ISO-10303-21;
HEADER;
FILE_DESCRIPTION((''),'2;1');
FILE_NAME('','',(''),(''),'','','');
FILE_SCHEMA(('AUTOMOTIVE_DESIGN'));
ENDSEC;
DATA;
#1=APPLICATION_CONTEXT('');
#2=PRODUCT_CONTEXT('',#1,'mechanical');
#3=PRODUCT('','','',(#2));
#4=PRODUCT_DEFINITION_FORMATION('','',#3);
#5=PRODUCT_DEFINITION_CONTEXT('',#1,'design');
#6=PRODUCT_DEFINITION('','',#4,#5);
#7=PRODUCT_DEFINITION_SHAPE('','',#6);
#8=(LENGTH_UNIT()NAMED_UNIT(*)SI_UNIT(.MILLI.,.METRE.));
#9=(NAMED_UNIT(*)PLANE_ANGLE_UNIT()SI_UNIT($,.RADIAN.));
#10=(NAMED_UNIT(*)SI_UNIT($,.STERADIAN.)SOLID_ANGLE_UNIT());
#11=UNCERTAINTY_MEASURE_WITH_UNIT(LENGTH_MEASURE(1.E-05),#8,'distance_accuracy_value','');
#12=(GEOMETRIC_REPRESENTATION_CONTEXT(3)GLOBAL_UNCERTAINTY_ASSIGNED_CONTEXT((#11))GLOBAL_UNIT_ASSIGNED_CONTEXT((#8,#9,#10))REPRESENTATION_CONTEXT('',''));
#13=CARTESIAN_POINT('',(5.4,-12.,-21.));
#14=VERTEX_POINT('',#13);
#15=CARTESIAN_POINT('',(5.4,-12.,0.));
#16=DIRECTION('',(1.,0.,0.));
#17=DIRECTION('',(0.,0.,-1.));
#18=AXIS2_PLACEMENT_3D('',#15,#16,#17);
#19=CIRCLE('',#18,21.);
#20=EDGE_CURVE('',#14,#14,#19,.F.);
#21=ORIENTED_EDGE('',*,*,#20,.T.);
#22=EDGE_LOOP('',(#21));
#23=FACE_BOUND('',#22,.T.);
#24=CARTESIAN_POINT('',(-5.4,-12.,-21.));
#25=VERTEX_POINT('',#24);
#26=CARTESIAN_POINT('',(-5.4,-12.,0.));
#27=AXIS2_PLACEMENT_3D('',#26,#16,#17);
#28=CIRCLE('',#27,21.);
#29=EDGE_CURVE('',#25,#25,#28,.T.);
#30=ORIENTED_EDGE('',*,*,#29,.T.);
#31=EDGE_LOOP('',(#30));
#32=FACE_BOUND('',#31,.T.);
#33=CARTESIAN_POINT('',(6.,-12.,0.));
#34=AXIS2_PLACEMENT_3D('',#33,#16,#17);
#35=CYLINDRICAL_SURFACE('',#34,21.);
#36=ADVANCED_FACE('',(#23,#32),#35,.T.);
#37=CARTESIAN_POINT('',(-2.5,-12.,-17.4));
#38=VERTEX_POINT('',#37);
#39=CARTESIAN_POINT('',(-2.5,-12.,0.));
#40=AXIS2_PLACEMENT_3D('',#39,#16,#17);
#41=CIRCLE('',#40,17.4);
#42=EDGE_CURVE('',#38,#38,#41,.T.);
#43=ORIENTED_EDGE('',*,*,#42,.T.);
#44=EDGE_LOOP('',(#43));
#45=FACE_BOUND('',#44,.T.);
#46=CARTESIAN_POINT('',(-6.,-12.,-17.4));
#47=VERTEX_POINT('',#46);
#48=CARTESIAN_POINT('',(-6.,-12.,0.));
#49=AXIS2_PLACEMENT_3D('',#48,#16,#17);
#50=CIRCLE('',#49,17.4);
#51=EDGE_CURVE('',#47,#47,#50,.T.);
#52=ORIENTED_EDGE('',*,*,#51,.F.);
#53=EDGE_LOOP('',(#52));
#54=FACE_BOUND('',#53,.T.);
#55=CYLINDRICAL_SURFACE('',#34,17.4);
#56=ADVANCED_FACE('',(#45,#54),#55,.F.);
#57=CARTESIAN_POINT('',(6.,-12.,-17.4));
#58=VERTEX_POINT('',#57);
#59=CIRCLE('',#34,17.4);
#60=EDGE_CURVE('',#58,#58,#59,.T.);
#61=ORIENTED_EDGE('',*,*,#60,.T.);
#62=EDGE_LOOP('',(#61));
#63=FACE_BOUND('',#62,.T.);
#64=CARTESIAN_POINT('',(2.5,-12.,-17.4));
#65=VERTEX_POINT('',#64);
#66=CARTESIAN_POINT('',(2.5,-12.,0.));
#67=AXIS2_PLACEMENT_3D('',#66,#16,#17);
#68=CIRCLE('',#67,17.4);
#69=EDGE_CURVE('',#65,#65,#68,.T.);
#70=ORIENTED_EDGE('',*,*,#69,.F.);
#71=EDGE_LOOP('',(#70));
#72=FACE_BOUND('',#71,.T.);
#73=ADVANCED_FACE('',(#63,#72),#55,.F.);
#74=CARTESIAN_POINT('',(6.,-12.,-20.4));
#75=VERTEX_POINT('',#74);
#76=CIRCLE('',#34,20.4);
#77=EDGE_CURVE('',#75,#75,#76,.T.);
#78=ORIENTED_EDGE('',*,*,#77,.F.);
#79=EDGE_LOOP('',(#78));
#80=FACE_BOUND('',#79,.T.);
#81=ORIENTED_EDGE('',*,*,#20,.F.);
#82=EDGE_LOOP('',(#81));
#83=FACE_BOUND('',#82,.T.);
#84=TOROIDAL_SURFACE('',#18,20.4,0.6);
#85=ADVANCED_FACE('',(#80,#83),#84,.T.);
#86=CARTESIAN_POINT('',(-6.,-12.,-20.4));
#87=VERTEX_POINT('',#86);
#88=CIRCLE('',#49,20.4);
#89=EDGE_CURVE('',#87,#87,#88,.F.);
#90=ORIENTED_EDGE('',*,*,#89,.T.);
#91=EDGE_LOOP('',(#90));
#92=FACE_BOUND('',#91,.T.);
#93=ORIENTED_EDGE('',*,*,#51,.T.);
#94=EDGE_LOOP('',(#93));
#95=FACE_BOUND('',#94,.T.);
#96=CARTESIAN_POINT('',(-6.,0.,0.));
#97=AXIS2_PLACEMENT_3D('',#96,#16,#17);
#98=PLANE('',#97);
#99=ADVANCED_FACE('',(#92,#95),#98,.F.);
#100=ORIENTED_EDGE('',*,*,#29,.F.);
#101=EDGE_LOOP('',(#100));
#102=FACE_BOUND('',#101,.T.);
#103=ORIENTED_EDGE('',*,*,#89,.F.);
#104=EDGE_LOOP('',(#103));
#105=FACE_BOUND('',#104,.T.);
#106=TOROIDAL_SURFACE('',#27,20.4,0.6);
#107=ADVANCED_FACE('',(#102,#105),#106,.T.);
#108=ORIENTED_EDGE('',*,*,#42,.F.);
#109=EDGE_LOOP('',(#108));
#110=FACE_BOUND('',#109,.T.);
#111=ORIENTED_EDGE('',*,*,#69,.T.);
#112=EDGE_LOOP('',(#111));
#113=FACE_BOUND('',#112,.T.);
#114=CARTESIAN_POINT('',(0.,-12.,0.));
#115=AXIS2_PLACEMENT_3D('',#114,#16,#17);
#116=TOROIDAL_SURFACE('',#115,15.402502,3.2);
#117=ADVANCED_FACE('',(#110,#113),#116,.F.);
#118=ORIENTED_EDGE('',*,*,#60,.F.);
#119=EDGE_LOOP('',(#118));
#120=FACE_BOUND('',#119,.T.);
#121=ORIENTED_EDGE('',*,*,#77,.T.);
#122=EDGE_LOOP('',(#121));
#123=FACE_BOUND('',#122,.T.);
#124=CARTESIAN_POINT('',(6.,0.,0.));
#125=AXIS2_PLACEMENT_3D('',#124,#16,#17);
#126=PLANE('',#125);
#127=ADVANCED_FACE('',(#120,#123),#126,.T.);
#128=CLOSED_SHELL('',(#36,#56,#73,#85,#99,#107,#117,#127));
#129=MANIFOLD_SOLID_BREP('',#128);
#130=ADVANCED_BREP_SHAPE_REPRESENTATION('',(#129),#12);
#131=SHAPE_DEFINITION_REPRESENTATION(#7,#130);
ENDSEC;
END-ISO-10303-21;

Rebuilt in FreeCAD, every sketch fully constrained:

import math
import FreeCAD as App
import Part
import Sketcher
from FreeCAD import Vector
Q = App.Units.Quantity


def edges_at(feature, points):
    """Names of the edges that pass closest to the given points."""
    edges = feature.Shape.Edges
    near = lambda p: min(range(len(edges)), key=lambda i: edges[i].distToShape(Part.Vertex(*p))[0])
    return sorted({f"Edge{near(p) + 1}" for p in points})

doc = App.newDocument("Part")
body = doc.addObject("PartDesign::Body", "Body")

# Sketch on XY plane
sketch1 = doc.addObject("Sketcher::SketchObject", "Sketch")
body.addObject(sketch1)
sketch1.AttachmentSupport = (doc.XY_Plane, [""])
sketch1.MapMode = "FlatFace"
sketch1.addGeometry(Part.ArcOfCircle(Part.Circle(Vector(0, 3.4, 0), Vector(0, 0, 1), 3.2), math.radians(39), math.radians(141)), False)
sketch1.addGeometry(Part.LineSegment(Vector(2.5, 5.4, 0), Vector(6, 5.4, 0)), False)
sketch1.addGeometry(Part.LineSegment(Vector(6, 5.4, 0), Vector(6, 9, 0)), False)
sketch1.addGeometry(Part.LineSegment(Vector(6, 9, 0), Vector(-6, 9, 0)), False)
sketch1.addGeometry(Part.LineSegment(Vector(-6, 9, 0), Vector(-6, 5.4, 0)), False)
sketch1.addGeometry(Part.LineSegment(Vector(-6, 5.4, 0), Vector(-2.5, 5.4, 0)), False)
sketch1.addGeometry(Part.LineSegment(Vector(6, -12, 0), Vector(-6, -12, 0)), True)  # axis
sketch1.addConstraint(Sketcher.Constraint("Coincident", 0, 1, 1, 1))
sketch1.addConstraint(Sketcher.Constraint("Coincident", 1, 2, 2, 1))
sketch1.addConstraint(Sketcher.Constraint("Coincident", 2, 2, 3, 1))
sketch1.addConstraint(Sketcher.Constraint("Coincident", 3, 2, 4, 1))
sketch1.addConstraint(Sketcher.Constraint("Coincident", 4, 2, 5, 1))
sketch1.addConstraint(Sketcher.Constraint("Coincident", 5, 2, 0, 2))
sketch1.addConstraint(Sketcher.Constraint("Horizontal", 1))
sketch1.addConstraint(Sketcher.Constraint("Vertical", 2))
sketch1.addConstraint(Sketcher.Constraint("Horizontal", 3))
sketch1.addConstraint(Sketcher.Constraint("Vertical", 4))
sketch1.addConstraint(Sketcher.Constraint("Horizontal", 5))
sketch1.addConstraint(Sketcher.Constraint("Horizontal", 6))
sketch1.addConstraint(Sketcher.Constraint("Symmetric", 1, 2, 4, 2, -2))
sketch1.addConstraint(Sketcher.Constraint("PointOnObject", 0, 3, -2))
sketch1.addConstraint(Sketcher.Constraint("Vertical", 2, 2, 6, 1))
sketch1.addConstraint(Sketcher.Constraint("Vertical", 4, 2, 6, 2))
sketch1.addConstraint(Sketcher.Constraint("Radius", 0, Q("3.2 mm")))
sketch1.addConstraint(Sketcher.Constraint("DistanceX", 3, 2, 3, 1, Q("12 mm")))
sketch1.addConstraint(Sketcher.Constraint("DistanceX", 1, 1, 1, 2, Q("3.5 mm")))
sketch1.addConstraint(Sketcher.Constraint("DistanceY", 2, 1, 2, 2, Q("3.6 mm")))
sketch1.addConstraint(Sketcher.Constraint("DistanceY", -1, 1, 2, 2, Q("9 mm")))
sketch1.addConstraint(Sketcher.Constraint("DistanceY", 6, 1, -1, 1, Q("12 mm")))
revolution = doc.addObject("PartDesign::Revolution", "Revolution")
body.addObject(revolution)
revolution.Profile = sketch1
revolution.ReferenceAxis = (sketch1, ["Axis0"])
revolution.Angle = 360
doc.recompute()

fillet = doc.addObject("PartDesign::Fillet", "Fillet")
body.addObject(fillet)
fillet.Base = (revolution, edges_at(revolution, [(-6, -33, 0), (6, -33, 0)]))
fillet.Radius = 0.6

doc.recompute()
